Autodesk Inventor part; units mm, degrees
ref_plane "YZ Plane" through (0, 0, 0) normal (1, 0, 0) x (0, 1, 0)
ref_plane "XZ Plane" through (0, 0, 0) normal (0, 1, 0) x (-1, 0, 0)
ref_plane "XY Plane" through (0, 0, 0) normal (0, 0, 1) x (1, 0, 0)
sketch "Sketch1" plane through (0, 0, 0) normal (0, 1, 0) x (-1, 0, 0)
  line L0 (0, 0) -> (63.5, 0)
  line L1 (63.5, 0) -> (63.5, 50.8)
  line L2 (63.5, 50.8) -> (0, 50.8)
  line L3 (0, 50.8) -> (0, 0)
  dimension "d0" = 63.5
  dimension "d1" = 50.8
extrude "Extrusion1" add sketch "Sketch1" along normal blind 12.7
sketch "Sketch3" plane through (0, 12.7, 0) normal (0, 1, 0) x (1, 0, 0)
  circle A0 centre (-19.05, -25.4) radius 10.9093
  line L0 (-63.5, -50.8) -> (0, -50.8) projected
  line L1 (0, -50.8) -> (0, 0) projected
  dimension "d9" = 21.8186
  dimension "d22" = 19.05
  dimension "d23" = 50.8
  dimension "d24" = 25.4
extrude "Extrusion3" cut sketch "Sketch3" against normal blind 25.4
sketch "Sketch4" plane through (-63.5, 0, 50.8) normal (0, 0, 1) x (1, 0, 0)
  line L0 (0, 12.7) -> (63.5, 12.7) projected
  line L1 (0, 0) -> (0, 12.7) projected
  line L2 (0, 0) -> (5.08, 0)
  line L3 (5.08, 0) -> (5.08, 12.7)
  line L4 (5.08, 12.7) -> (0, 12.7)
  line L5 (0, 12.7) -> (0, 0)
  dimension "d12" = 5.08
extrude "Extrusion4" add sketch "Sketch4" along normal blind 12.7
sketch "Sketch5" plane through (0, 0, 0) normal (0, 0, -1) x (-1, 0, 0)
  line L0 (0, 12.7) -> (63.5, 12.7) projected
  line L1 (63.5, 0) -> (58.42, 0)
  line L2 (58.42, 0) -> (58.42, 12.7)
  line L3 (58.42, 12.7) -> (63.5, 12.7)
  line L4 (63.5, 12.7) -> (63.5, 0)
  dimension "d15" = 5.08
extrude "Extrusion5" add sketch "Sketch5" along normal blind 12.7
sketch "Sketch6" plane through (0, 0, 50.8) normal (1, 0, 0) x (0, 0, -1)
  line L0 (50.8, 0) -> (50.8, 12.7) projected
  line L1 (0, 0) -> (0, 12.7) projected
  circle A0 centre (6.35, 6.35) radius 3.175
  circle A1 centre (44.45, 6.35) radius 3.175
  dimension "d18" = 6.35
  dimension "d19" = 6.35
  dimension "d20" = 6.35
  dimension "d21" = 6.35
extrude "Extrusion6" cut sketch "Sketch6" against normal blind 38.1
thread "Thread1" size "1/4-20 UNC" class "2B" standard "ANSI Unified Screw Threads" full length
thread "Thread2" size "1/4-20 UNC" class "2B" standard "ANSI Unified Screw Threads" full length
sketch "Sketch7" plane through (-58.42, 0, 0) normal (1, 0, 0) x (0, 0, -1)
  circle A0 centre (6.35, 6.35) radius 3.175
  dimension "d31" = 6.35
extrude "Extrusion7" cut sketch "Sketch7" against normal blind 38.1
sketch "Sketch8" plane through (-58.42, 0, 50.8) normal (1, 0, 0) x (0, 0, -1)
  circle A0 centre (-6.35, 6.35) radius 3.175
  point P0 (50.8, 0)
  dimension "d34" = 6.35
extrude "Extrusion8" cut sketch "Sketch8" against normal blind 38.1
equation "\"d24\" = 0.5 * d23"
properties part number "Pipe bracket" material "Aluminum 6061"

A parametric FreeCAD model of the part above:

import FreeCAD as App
import Part
import Sketcher
Q = App.Units.Quantity


def add_polygon(sketch, points):
    """Adds a closed chain of lines whose ends are joined by coincident constraints."""
    first, n = sketch.GeometryCount, len(points)
    for a, b in zip(points, points[1:] + points[:1]):
        sketch.addGeometry(Part.LineSegment(App.Vector(*a, 0), App.Vector(*b, 0)), False)
    for i in range(n):
        sketch.addConstraint(Sketcher.Constraint("Coincident", first + i, 2, first + (i + 1) % n, 1))

doc = App.newDocument("Part")
body = doc.addObject("PartDesign::Body", "Body")

sketch1 = doc.addObject("Sketcher::SketchObject", "Sketch")
body.addObject(sketch1)
sketch1.AttachmentSupport = (doc.XZ_Plane, [""])
sketch1.MapMode = "FlatFace"
add_polygon(sketch1, [(0, 50.8), (0, 0), (-63.5, 0), (-63.5, 50.8)])
sketch1.addConstraint([
    Sketcher.Constraint("Vertical", 0),
    Sketcher.Constraint("Horizontal", 1),
    Sketcher.Constraint("Vertical", 2),
    Sketcher.Constraint("Horizontal", 3),
    Sketcher.Constraint("Coincident", 0, 2, -1, 1),
    Sketcher.Constraint("DistanceY", 0, 2, 0, 1, Q("2 in")),
    Sketcher.Constraint("DistanceX", 1, 2, 1, 1, Q("2.5 in")),
])
pad1 = doc.addObject("PartDesign::Pad", "Pad")
body.addObject(pad1)
pad1.Profile = sketch1
pad1.Length = Q("0.5 in")
pad1.Reversed = True

sketch2 = doc.addObject("Sketcher::SketchObject", "Sketch001")
body.addObject(sketch2)
sketch2.AttachmentSupport = (doc.XZ_Plane, [""])
sketch2.MapMode = "FlatFace"
sketch2.AttachmentOffset = App.Placement(App.Vector(0, 0, -0.5 * 25.4), App.Rotation())
sketch2.addGeometry(Part.Circle(App.Vector(-19.05, 25.4, 0), App.Vector(0, 0, 1), 10.9093), False)
sketch2.addConstraint([
    Sketcher.Constraint("Diameter", 0, Q("0.859 in")),
    Sketcher.Constraint("DistanceY", -1, 1, 0, 3, Q("1 in")),
    Sketcher.Constraint("DistanceX", 0, 3, -1, 1, Q("0.75 in")),
])
pocket1 = doc.addObject("PartDesign::Pocket", "Pocket")
body.addObject(pocket1)
pocket1.Profile = sketch2
pocket1.Length = Q("1 in")
pocket1.Reversed = True

sketch3 = doc.addObject("Sketcher::SketchObject", "Sketch002")
body.addObject(sketch3)
sketch3.AttachmentSupport = (doc.XY_Plane, [""])
sketch3.MapMode = "FlatFace"
sketch3.AttachmentOffset = App.Placement(App.Vector(0, 0, 2 * 25.4), App.Rotation())
add_polygon(sketch3, [(-58.42, 12.7), (-63.5, 12.7), (-63.5, 0), (-58.42, 0)])
sketch3.addConstraint([
    Sketcher.Constraint("Horizontal", 0),
    Sketcher.Constraint("Vertical", 1),
    Sketcher.Constraint("Horizontal", 2),
    Sketcher.Constraint("Vertical", 3),
    Sketcher.Constraint("PointOnObject", 1, 2, -1),
    Sketcher.Constraint("DistanceX", 0, 2, 0, 1, Q("0.2 in")),
    Sketcher.Constraint("DistanceY", 1, 2, 1, 1, Q("0.5 in")),
    Sketcher.Constraint("DistanceX", 0, 2, -1, 1, Q("2.5 in")),
])
pad2 = doc.addObject("PartDesign::Pad", "Pad001")
body.addObject(pad2)
pad2.Profile = sketch3
pad2.Length = Q("0.5 in")

sketch4 = doc.addObject("Sketcher::SketchObject", "Sketch003")
body.addObject(sketch4)
sketch4.AttachmentSupport = (doc.XY_Plane, [""])
sketch4.MapMode = "FlatFace"
add_polygon(sketch4, [(-63.5, 12.7), (-58.42, 12.7), (-58.42, 0), (-63.5, 0)])
sketch4.addConstraint([
    Sketcher.Constraint("Horizontal", 0),
    Sketcher.Constraint("Vertical", 1),
    Sketcher.Constraint("Horizontal", 2),
    Sketcher.Constraint("Vertical", 3),
    Sketcher.Constraint("PointOnObject", 1, 2, -1),
    Sketcher.Constraint("DistanceX", 0, 1, 0, 2, Q("0.2 in")),
    Sketcher.Constraint("DistanceY", 1, 2, 1, 1, Q("0.5 in")),
    Sketcher.Constraint("DistanceX", 0, 2, -1, 1, Q("2.3 in")),
])
pad3 = doc.addObject("PartDesign::Pad", "Pad002")
body.addObject(pad3)
pad3.Profile = sketch4
pad3.Length = Q("0.5 in")
pad3.Reversed = True

sketch5 = doc.addObject("Sketcher::SketchObject", "Sketch004")
body.addObject(sketch5)
sketch5.AttachmentSupport = (doc.YZ_Plane, [""])
sketch5.MapMode = "FlatFace"
sketch5.addGeometry([
    Part.Circle(App.Vector(6.35, 44.45, 0), App.Vector(0, 0, 1), 3.175),
    Part.Circle(App.Vector(6.35, 6.35, 0), App.Vector(0, 0, 1), 3.175),
], False)
sketch5.addConstraint([
    Sketcher.Constraint("Equal", 0, 1),
    Sketcher.Constraint("Vertical", 0, 3, 1, 3),
    Sketcher.Constraint("Diameter", 0, Q("0.25 in")),
    Sketcher.Constraint("DistanceX", -1, 1, 0, 3, Q("0.25 in")),
    Sketcher.Constraint("DistanceY", -1, 1, 1, 3, Q("0.25 in")),
    Sketcher.Constraint("DistanceY", 1, 3, 0, 3, Q("1.5 in")),
])
pocket2 = doc.addObject("PartDesign::Pocket", "Pocket001")
body.addObject(pocket2)
pocket2.Profile = sketch5
pocket2.Length = Q("1.5 in")

sketch6 = doc.addObject("Sketcher::SketchObject", "Sketch005")
body.addObject(sketch6)
sketch6.AttachmentSupport = (doc.YZ_Plane, [""])
sketch6.MapMode = "FlatFace"
sketch6.AttachmentOffset = App.Placement(App.Vector(0, 0, -2.3 * 25.4), App.Rotation())
sketch6.addGeometry(Part.Circle(App.Vector(6.35, -6.35, 0), App.Vector(0, 0, 1), 3.175), False)
sketch6.addConstraint([
    Sketcher.Constraint("Diameter", 0, Q("0.25 in")),
    Sketcher.Constraint("DistanceX", -1, 1, 0, 3, Q("0.25 in")),
    Sketcher.Constraint("DistanceY", 0, 3, -1, 1, Q("0.25 in")),
])
pocket3 = doc.addObject("PartDesign::Pocket", "Pocket002")
body.addObject(pocket3)
pocket3.Profile = sketch6
pocket3.Length = Q("1.5 in")

sketch7 = doc.addObject("Sketcher::SketchObject", "Sketch006")
body.addObject(sketch7)
sketch7.AttachmentSupport = (doc.YZ_Plane, [""])
sketch7.MapMode = "FlatFace"
sketch7.AttachmentOffset = App.Placement(App.Vector(0, 0, -2.3 * 25.4), App.Rotation())
sketch7.addGeometry(Part.Circle(App.Vector(6.35, 57.15, 0), App.Vector(0, 0, 1), 3.175), False)
sketch7.addConstraint([
    Sketcher.Constraint("Diameter", 0, Q("0.25 in")),
    Sketcher.Constraint("DistanceX", -1, 1, 0, 3, Q("0.25 in")),
    Sketcher.Constraint("DistanceY", -1, 1, 0, 3, Q("2.25 in")),
])
pocket4 = doc.addObject("PartDesign::Pocket", "Pocket003")
body.addObject(pocket4)
pocket4.Profile = sketch7
pocket4.Length = Q("1.5 in")

doc.recompute()
